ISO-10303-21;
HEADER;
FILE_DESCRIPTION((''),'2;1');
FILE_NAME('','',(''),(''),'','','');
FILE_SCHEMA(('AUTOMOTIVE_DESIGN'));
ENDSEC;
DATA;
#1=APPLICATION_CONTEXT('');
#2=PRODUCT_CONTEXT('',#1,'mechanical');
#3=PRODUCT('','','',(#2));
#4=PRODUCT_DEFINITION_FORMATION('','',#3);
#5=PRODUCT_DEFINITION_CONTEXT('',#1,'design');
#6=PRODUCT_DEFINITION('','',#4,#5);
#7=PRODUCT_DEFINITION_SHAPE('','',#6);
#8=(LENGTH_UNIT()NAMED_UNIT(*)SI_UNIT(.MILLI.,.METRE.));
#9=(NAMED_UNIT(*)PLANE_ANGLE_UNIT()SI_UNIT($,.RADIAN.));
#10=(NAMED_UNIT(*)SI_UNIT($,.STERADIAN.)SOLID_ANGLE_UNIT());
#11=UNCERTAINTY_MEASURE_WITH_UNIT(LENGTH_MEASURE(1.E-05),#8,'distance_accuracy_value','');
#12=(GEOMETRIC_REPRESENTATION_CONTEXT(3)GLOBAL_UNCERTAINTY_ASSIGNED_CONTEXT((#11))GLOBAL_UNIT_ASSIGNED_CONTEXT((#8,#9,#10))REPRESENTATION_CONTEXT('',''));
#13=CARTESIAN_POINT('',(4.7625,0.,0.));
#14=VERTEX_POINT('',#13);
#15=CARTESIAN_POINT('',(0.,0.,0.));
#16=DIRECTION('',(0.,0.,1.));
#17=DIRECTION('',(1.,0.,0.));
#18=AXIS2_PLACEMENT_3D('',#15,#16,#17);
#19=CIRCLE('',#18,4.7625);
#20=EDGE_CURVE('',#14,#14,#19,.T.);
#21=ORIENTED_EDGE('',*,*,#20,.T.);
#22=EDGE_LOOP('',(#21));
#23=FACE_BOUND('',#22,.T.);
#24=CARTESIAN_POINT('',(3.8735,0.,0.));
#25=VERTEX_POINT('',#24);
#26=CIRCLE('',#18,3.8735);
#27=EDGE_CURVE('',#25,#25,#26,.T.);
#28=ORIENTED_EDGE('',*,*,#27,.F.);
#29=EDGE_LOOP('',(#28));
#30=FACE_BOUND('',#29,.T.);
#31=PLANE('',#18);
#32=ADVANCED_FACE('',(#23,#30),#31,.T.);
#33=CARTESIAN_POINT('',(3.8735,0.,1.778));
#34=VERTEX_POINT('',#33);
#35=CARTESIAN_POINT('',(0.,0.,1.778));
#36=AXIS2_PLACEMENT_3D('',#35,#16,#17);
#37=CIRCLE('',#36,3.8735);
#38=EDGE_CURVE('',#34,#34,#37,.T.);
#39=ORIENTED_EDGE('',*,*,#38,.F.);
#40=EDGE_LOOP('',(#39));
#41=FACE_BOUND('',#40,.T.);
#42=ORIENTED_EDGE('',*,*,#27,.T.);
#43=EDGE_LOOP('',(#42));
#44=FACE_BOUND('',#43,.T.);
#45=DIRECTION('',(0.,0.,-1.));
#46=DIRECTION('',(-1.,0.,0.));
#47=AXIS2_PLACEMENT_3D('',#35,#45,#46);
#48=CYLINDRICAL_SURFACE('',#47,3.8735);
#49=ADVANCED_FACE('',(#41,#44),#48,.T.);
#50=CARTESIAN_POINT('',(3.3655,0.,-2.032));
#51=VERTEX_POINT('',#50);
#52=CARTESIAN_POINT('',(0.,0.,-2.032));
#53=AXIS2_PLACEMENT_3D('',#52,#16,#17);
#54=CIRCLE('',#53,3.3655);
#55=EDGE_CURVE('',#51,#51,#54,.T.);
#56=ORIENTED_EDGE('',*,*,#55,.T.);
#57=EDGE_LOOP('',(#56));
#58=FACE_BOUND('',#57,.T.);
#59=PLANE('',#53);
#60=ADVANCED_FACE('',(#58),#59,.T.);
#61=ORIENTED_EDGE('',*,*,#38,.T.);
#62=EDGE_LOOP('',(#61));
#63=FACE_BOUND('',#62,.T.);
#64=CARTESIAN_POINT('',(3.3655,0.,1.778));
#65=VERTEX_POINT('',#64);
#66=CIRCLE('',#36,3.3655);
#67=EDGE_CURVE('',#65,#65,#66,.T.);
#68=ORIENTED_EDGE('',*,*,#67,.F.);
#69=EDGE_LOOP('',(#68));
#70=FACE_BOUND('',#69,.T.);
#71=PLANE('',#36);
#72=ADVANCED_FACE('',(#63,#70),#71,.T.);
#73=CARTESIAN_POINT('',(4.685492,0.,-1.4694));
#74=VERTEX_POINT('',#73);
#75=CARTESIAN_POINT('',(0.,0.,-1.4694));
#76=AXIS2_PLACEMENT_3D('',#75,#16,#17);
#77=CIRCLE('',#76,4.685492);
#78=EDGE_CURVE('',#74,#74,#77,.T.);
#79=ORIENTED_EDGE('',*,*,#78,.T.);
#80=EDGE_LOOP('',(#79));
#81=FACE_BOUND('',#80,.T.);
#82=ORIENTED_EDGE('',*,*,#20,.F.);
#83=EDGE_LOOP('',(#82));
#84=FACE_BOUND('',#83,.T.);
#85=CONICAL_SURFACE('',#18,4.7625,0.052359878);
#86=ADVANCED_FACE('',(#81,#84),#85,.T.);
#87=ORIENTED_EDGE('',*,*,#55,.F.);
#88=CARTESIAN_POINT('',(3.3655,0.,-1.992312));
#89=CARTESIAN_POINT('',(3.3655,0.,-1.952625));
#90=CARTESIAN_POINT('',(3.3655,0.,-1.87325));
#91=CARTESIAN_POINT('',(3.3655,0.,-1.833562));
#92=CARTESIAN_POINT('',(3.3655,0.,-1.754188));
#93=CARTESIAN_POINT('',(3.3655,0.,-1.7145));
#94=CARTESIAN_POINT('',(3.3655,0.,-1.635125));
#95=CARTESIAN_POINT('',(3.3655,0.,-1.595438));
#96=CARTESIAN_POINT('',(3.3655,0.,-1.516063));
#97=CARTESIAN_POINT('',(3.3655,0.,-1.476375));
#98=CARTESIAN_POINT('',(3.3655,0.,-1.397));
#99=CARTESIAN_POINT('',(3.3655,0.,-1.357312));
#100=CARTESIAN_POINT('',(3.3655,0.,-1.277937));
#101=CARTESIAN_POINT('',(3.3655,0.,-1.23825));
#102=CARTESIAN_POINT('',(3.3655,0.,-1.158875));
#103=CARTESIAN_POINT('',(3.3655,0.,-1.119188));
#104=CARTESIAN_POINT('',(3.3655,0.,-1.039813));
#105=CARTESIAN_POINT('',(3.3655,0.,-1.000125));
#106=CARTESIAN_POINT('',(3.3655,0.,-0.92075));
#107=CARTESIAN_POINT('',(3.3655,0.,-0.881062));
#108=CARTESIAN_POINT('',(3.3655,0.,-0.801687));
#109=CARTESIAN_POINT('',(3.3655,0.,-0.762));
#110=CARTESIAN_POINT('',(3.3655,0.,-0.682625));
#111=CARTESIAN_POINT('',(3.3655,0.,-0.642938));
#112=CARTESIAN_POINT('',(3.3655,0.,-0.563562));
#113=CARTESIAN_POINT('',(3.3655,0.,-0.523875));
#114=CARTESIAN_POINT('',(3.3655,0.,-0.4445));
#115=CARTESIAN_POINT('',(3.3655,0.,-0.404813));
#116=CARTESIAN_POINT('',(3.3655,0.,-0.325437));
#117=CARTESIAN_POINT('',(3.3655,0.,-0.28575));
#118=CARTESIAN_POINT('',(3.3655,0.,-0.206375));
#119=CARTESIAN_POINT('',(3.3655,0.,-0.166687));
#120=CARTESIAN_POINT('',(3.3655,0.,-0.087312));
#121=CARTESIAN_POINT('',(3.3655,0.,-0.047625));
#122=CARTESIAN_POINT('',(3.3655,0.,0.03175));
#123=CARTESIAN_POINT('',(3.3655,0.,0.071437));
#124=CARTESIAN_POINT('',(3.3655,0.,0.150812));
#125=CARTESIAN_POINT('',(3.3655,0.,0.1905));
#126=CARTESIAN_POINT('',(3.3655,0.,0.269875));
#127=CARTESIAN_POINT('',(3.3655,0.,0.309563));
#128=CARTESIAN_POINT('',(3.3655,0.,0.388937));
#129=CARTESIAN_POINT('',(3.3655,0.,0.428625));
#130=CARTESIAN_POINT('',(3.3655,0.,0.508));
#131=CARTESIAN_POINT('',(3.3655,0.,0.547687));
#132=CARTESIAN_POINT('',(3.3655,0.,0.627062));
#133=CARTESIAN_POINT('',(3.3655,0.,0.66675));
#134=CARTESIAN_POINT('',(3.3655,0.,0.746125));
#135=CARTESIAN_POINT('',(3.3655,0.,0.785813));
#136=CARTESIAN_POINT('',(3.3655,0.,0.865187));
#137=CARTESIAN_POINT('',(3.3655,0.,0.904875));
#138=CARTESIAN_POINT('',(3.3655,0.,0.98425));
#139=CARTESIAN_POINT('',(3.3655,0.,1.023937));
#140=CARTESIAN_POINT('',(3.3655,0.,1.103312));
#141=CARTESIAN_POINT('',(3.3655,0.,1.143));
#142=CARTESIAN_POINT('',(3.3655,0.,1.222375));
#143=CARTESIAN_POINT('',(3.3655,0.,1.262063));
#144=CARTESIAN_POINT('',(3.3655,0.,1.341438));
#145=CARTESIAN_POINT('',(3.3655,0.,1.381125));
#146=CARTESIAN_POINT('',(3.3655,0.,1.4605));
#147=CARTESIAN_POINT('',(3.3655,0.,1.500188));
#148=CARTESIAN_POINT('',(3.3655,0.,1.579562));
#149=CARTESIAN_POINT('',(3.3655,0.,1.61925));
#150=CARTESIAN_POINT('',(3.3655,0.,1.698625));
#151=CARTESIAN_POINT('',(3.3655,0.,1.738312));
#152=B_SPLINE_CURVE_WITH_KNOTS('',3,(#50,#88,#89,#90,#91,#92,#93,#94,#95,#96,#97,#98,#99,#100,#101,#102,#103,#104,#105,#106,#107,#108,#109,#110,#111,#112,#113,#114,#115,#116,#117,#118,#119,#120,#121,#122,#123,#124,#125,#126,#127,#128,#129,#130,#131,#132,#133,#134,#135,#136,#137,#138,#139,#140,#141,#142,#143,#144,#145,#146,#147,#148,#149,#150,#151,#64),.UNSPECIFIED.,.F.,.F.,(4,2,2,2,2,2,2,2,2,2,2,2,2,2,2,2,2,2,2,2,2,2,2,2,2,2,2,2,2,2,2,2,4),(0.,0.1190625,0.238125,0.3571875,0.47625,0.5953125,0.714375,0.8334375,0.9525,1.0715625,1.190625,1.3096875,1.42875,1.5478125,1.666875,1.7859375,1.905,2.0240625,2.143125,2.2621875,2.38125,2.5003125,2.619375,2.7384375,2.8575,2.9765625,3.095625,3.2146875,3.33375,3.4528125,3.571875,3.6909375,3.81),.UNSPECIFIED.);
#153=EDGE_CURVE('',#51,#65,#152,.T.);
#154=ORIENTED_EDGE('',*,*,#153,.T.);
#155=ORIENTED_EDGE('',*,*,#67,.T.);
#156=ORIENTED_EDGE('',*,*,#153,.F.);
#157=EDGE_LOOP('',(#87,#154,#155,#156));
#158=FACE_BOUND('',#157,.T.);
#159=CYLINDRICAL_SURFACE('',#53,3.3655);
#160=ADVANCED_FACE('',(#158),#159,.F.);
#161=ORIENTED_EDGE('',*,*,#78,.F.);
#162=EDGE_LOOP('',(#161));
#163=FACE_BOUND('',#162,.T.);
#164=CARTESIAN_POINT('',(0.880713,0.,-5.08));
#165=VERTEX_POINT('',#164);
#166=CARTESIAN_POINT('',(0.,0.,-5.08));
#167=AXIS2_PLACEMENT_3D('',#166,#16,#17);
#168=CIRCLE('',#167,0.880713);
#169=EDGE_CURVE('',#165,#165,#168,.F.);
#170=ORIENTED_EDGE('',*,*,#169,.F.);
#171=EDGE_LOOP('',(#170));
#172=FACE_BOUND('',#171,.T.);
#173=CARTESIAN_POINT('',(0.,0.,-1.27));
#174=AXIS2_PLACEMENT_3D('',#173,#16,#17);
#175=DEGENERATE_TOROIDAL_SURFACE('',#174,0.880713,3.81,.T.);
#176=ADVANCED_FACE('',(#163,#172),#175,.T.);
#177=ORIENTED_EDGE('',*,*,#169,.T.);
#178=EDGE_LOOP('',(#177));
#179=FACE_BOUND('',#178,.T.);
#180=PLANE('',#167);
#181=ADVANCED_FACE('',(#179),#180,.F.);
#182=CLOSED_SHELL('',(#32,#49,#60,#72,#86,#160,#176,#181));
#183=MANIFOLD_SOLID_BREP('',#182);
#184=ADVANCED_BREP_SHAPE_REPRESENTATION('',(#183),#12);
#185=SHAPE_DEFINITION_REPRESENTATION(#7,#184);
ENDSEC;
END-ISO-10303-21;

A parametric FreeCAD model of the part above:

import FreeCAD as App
import Part
import Sketcher
Q = App.Units.Quantity


def edges_at(feature, points):
    """Names of the edges that pass closest to the given points."""
    edges = feature.Shape.Edges
    near = lambda p: min(range(len(edges)), key=lambda i: edges[i].distToShape(Part.Vertex(*p))[0])
    return sorted({f"Edge{near(p) + 1}" for p in points})


def faces_at(feature, points):
    """Names of the faces that lie closest to the given points."""
    faces = feature.Shape.Faces
    near = lambda p: min(range(len(faces)), key=lambda i: faces[i].distToShape(Part.Vertex(*p))[0])
    return sorted({f"Face{near(p) + 1}" for p in points})

doc = App.newDocument("Part")
body = doc.addObject("PartDesign::Body", "Body")

sketch1 = doc.addObject("Sketcher::SketchObject", "Sketch")
body.addObject(sketch1)
sketch1.AttachmentSupport = (doc.XY_Plane, [""])
sketch1.MapMode = "FlatFace"
sketch1.addGeometry(Part.Circle(App.Vector(0, 0, 0), App.Vector(0, 0, 1), 4.8), False)
sketch1.addConstraint([
    Sketcher.Constraint("Coincident", 0, 3, -1, 1),
    Sketcher.Constraint("Diameter", 0, Q("0.375 in")),
])
pad1 = doc.addObject("PartDesign::Pad", "Pad")
body.addObject(pad1)
pad1.Profile = sketch1
pad1.Length = Q("0.2 in")
pad1.Reversed = True
doc.recompute()

draft = doc.addObject("PartDesign::Draft", "Draft")
body.addObject(draft)
draft.Base = (pad1, faces_at(pad1, [(-4.763, 0, -2.54)]))
draft.NeutralPlane = (doc.XY_Plane, [""])
draft.Angle = 3
draft.Reversed = True
doc.recompute()

fillet = doc.addObject("PartDesign::Fillet", "Fillet")
body.addObject(fillet)
fillet.Base = (draft, edges_at(draft, [(-4.496, 0, -5.08)]))
fillet.Radius = Q("0.15 in")

sketch2 = doc.addObject("Sketcher::SketchObject", "Sketch001")
body.addObject(sketch2)
sketch2.AttachmentSupport = (doc.XY_Plane, [""])
sketch2.MapMode = "FlatFace"
sketch2.addGeometry(Part.Circle(App.Vector(0, 0, 0), App.Vector(0, 0, 1), 3.9), False)
sketch2.addConstraint([
    Sketcher.Constraint("Coincident", 0, 3, -1, 1),
    Sketcher.Constraint("Diameter", 0, Q("0.305 in")),
])
pad2 = doc.addObject("PartDesign::Pad", "Pad001")
body.addObject(pad2)
pad2.Profile = sketch2
pad2.Length = Q("0.07 in")

sketch3 = doc.addObject("Sketcher::SketchObject", "Sketch002")
body.addObject(sketch3)
sketch3.AttachmentSupport = (doc.XY_Plane, [""])
sketch3.MapMode = "FlatFace"
sketch3.AttachmentOffset = App.Placement(App.Vector(0, 0, 0.07 * 25.4), App.Rotation())
sketch3.addGeometry(Part.Circle(App.Vector(0, 0, 0), App.Vector(0, 0, 1), 3.4), False)
sketch3.addConstraint([
    Sketcher.Constraint("Coincident", 0, 3, -1, 1),
    Sketcher.Constraint("Diameter", 0, Q("0.265 in")),
])
pocket1 = doc.addObject("PartDesign::Pocket", "Pocket")
body.addObject(pocket1)
pocket1.Profile = sketch3
pocket1.Length = Q("0.15 in")

doc.recompute()
